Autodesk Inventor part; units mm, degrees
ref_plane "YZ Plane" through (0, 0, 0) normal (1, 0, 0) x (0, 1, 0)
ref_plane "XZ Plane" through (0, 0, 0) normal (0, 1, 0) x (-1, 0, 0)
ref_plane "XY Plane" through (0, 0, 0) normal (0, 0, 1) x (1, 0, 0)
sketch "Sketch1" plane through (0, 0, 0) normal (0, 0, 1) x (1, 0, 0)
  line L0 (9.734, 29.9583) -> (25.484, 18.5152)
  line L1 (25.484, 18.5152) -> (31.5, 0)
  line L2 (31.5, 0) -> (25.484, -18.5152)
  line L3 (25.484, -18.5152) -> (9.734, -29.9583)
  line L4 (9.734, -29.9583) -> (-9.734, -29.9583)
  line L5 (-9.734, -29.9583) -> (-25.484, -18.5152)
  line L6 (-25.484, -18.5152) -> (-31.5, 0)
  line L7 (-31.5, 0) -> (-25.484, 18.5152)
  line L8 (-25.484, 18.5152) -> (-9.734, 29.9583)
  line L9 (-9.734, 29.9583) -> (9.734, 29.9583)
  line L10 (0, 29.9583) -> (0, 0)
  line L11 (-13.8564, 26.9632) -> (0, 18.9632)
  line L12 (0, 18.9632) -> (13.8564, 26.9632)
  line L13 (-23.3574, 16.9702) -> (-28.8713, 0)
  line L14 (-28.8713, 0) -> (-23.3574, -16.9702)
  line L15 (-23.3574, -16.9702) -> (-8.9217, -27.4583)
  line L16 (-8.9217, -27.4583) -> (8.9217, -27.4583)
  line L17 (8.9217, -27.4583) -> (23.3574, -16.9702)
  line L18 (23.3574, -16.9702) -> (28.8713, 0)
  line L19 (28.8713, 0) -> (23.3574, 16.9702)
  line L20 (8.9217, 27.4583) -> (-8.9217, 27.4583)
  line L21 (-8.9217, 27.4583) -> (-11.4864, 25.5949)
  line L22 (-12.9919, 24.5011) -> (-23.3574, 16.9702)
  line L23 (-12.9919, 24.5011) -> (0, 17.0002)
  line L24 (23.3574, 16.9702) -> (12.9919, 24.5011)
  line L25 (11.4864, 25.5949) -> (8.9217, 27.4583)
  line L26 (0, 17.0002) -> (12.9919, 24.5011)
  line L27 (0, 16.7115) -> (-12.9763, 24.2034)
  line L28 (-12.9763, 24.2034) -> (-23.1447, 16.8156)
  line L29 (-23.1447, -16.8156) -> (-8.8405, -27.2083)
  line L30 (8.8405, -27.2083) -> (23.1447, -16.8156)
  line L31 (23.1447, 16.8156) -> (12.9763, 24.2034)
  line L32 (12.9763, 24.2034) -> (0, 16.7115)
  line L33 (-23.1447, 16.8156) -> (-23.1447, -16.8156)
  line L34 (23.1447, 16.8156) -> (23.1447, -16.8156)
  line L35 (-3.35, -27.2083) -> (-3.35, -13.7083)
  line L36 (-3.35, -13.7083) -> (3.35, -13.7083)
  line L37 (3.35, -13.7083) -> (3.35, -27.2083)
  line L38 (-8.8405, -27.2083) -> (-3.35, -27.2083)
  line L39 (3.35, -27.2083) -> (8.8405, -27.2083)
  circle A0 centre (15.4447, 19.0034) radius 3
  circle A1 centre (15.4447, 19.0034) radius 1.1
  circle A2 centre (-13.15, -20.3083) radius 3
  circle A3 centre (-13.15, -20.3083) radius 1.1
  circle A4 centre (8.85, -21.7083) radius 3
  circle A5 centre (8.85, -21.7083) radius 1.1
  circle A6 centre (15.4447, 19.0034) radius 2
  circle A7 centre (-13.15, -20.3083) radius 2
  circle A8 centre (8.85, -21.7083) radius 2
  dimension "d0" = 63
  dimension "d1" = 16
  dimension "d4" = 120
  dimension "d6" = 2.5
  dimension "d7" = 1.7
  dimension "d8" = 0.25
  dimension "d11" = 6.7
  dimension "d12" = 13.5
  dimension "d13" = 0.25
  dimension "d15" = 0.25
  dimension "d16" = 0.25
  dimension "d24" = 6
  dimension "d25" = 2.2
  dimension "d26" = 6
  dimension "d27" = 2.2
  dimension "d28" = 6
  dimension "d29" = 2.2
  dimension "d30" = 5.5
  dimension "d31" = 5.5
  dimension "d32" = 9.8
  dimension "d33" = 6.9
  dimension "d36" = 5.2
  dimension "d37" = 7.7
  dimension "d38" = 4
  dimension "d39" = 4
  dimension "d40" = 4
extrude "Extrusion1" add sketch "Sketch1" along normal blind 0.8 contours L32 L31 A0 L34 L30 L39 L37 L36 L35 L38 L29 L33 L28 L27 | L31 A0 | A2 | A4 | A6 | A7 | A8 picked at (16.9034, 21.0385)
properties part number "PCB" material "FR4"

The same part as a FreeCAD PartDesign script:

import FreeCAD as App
import Part
import Sketcher
from FreeCAD import Vector
Q = App.Units.Quantity


def add_polygon(sketch, points):
    """Adds a closed chain of lines whose ends are joined by coincident constraints."""
    first, n = sketch.GeometryCount, len(points)
    for a, b in zip(points, points[1:] + points[:1]):
        sketch.addGeometry(Part.LineSegment(App.Vector(*a, 0), App.Vector(*b, 0)), False)
    for i in range(n):
        sketch.addConstraint(Sketcher.Constraint("Coincident", first + i, 2, first + (i + 1) % n, 1))

doc = App.newDocument("Part")
body = doc.addObject("PartDesign::Body", "Body")

# Sketch on XY plane
sketch1 = body.newObject("Sketcher::SketchObject", "Sketch")
sketch1.AttachmentSupport = (doc.getObject("XY_Plane"), [""])
sketch1.MapMode = "FlatFace"
add_polygon(sketch1, [(12.9763, 24.2034), (0, 16.7115), (-12.9763, 24.2034), (-23.1447, 16.8156), (-23.1447, -16.8156), (-8.8405, -27.2083), (-3.35, -27.2083), (-3.35, -13.7083), (3.35, -13.7083), (3.35, -27.2083), (8.8405, -27.2083), (23.1447, -16.8156), (23.1447, 16.8156)])  # lines 0-12
sketch1.addGeometry(Part.Circle(Vector(15.4447, 19.0034, 0), Vector(0, 0, 1), 1.1), False)  # 13
sketch1.addGeometry(Part.Circle(Vector(-13.15, -20.3083, 0), Vector(0, 0, 1), 1.1), False)  # 14
sketch1.addGeometry(Part.Circle(Vector(8.85, -21.7083, 0), Vector(0, 0, 1), 1.1), False)  # 15
sketch1.addConstraint([
    Sketcher.Constraint("Vertical", 3),
    Sketcher.Constraint("Horizontal", 5),
    Sketcher.Constraint("Vertical", 6),
    Sketcher.Constraint("Horizontal", 7),
    Sketcher.Constraint("Vertical", 8),
    Sketcher.Constraint("Horizontal", 9),
    Sketcher.Constraint("Vertical", 11),
    Sketcher.Constraint("Equal", 13, 14),
    Sketcher.Constraint("Equal", 14, 15),
    Sketcher.Constraint("Symmetric", 2, 2, 10, 2, -1, 1),
    Sketcher.Constraint("Symmetric", 5, 2, 8, 2, -2),
    Sketcher.Constraint("Symmetric", 1, 2, 12, 2, -2),
    Sketcher.Constraint("PointOnObject", 0, 2, -2),
    Sketcher.Constraint("Parallel", 2, 10),
    Sketcher.Constraint("Parallel", 4, 12),
    Sketcher.Constraint("Horizontal", 3, 2, 10, 2),
    Sketcher.Constraint("Horizontal", 2, 2, 11, 2),
    Sketcher.Constraint("Diameter", 13, Q("2.2 mm")),
    Sketcher.Constraint("DistanceX", 7, 1, 7, 2, Q("6.7 mm")),
    Sketcher.Constraint("DistanceY", 6, 1, 6, 2, Q("13.5 mm")),
    Sketcher.Constraint("DistanceY", 13, 3, 1, 2, Q("5.2 mm")),
    Sketcher.Constraint("DistanceY", 4, 2, 14, 3, Q("6.9 mm")),
    Sketcher.Constraint("DistanceY", 4, 2, 15, 3, Q("5.5 mm")),
    Sketcher.Constraint("DistanceX", 14, 3, 5, 2, Q("9.8 mm")),
    Sketcher.Constraint("DistanceX", 7, 2, 15, 3, Q("5.5 mm")),
    Sketcher.Constraint("DistanceX", 13, 3, 11, 2, Q("7.7 mm")),
    Sketcher.Constraint("Angle", 0, Q("-150 deg")),
    Sketcher.Constraint("Angle", 2, Q("-144 deg")),
    Sketcher.Constraint("Distance", 4, Q("17.681 mm")),
    Sketcher.Constraint("DistanceX", 5, 1, 5, 2, Q("5.4905 mm")),
    Sketcher.Constraint("DistanceY", 3, 2, 3, 1, Q("33.6312 mm")),
    Sketcher.Constraint("DistanceY", 0, 2, 13, 3, Q("2.292 mm")),
])
pad1 = body.newObject("PartDesign::Pad", "Pad")
pad1.Profile = sketch1
pad1.Length = 0.8

doc.recompute()
